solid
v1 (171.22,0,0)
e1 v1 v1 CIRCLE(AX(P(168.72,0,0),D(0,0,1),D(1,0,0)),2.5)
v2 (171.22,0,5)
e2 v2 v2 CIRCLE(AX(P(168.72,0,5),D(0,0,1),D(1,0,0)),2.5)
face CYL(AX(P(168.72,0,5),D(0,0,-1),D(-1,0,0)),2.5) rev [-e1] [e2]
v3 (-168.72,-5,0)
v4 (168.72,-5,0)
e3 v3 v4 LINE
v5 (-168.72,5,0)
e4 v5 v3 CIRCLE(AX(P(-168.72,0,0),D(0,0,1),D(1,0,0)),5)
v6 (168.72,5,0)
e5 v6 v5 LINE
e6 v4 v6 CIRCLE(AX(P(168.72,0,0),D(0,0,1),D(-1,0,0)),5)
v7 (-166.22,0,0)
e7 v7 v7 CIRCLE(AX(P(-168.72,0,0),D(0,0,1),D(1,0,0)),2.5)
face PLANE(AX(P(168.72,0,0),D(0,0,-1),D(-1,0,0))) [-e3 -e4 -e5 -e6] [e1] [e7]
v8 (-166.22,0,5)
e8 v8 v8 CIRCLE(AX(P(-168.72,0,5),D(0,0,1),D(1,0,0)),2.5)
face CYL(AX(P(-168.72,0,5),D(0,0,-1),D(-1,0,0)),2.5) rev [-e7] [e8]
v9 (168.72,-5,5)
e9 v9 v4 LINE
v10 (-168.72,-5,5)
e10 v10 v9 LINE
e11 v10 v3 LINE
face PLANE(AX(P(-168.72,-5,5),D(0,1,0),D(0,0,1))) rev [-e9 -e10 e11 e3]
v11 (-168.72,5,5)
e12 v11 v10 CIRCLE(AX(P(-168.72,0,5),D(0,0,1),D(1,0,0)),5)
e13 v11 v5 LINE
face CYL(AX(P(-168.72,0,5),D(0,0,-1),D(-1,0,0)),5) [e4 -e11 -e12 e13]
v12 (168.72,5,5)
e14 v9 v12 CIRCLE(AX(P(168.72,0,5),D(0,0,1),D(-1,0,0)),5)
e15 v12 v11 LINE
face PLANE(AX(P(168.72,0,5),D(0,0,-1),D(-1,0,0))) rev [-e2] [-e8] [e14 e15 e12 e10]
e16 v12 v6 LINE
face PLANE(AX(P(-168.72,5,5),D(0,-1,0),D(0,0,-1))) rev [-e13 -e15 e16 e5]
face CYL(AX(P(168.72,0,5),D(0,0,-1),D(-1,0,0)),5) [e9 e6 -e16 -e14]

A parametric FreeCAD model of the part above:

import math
import FreeCAD as App
import Part
import Sketcher
from FreeCAD import Vector
Q = App.Units.Quantity

doc = App.newDocument("Part")
body = doc.addObject("PartDesign::Body", "Body")

# Sketch on XY plane
sketch1 = doc.addObject("Sketcher::SketchObject", "Sketch")
body.addObject(sketch1)
sketch1.AttachmentSupport = (doc.XY_Plane, [""])
sketch1.MapMode = "FlatFace"
sketch1.addGeometry([
    Part.LineSegment(Vector(168.72, 5, 0), Vector(-168.72, 5, 0)),  # 0
    Part.ArcOfCircle(Part.Circle(Vector(-168.72, 0, 0), Vector(0, 0, 1), 5), math.radians(90), math.radians(270)),  # 1
    Part.LineSegment(Vector(-168.72, -5, 0), Vector(168.72, -5, 0)),  # 2
    Part.ArcOfCircle(Part.Circle(Vector(168.72, 0, 0), Vector(0, 0, 1), 5), math.radians(-90), math.radians(90)),  # 3
    Part.Circle(Vector(168.72, 0, 0), Vector(0, 0, 1), 2.5),  # 4
    Part.Circle(Vector(-168.72, 0, 0), Vector(0, 0, 1), 2.5),  # 5
], False)
sketch1.addConstraint([
    Sketcher.Constraint("Tangent", 0, 2, 1, 1),
    Sketcher.Constraint("Tangent", 1, 2, 2, 1),
    Sketcher.Constraint("Tangent", 2, 2, 3, 1),
    Sketcher.Constraint("Tangent", 3, 2, 0, 1),
    Sketcher.Constraint("Horizontal", 0),
    Sketcher.Constraint("Horizontal", 2),
    Sketcher.Constraint("Coincident", 4, 3, 3, 3),
    Sketcher.Constraint("Coincident", 5, 3, 1, 3),
    Sketcher.Constraint("Equal", 4, 5),
    Sketcher.Constraint("Symmetric", 1, 3, 3, 3, -1, 1),
    Sketcher.Constraint("Diameter", 4, Q("5 mm")),
    Sketcher.Constraint("Radius", 1, Q("5 mm")),
    Sketcher.Constraint("DistanceX", 0, 2, 0, 1, Q("337.44 mm")),
])
pad1 = doc.addObject("PartDesign::Pad", "Pad")
body.addObject(pad1)
pad1.Profile = sketch1
pad1.Length = 5

doc.recompute()
